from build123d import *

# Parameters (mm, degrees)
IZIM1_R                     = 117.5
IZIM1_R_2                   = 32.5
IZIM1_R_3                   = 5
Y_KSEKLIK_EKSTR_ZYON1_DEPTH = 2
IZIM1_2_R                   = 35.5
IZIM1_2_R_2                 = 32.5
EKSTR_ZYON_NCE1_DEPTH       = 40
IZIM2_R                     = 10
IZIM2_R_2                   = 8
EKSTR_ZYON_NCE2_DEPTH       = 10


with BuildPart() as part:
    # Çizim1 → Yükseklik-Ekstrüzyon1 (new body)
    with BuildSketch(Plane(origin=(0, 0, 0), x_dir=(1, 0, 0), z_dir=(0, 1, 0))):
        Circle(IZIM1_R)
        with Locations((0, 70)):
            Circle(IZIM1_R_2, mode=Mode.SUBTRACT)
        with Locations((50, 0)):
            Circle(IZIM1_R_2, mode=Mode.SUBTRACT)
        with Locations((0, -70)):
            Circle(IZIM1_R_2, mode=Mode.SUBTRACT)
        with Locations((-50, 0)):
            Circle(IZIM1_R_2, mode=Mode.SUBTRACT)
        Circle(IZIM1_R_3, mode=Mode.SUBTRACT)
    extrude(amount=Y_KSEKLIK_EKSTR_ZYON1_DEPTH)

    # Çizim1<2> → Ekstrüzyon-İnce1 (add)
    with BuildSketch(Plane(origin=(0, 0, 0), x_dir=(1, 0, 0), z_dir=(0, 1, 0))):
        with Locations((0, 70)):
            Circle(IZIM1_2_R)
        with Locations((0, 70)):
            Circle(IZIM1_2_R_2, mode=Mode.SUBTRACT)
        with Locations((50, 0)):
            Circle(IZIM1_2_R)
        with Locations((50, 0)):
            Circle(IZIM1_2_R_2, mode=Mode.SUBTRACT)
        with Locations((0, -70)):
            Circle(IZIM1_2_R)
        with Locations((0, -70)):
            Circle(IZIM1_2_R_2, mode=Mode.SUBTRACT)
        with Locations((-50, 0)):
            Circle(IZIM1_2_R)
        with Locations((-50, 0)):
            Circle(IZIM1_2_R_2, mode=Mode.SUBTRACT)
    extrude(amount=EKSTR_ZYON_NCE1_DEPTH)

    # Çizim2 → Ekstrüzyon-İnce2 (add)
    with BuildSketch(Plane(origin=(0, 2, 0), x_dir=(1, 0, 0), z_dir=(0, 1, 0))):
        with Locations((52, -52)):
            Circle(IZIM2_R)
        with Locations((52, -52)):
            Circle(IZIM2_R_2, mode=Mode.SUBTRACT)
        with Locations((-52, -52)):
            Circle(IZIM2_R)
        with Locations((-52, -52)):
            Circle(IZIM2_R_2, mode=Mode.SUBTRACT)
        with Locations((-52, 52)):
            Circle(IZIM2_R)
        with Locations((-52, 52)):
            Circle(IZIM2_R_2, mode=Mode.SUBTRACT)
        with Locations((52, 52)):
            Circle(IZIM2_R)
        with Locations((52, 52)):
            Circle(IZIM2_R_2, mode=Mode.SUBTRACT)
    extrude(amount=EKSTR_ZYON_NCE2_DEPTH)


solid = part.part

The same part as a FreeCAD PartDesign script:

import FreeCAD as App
import Part
import Sketcher
Q = App.Units.Quantity

doc = App.newDocument("Part")
params = doc.addObject("Spreadsheet::Sheet", "Params")
for row, (alias, value) in enumerate([
    ("sketch1_diameter", "235 mm"),
    ("sketch1_diameter2", "65 mm"),
    ("sketch1_diameter3", "10 mm"),
    ("pad1_length", "2 mm"),
    ("sketch2_diameter", "71 mm"),
    ("sketch2_diameter2", "65 mm"),
    ("pad2_length", "40 mm"),
    ("sketch3_diameter", "20 mm"),
    ("sketch3_diameter2", "16 mm"),
    ("pad3_length", "10 mm"),
], start=1):
    params.set(f"A{row}", alias)
    params.set(f"B{row}", "=" + value)
    params.setAlias(f"B{row}", alias)

body = doc.addObject("PartDesign::Body", "Body")

sketch1 = body.newObject("Sketcher::SketchObject", "Sketch")
sketch1.AttachmentSupport = (doc.getObject("XZ_Plane"), [""])
sketch1.MapMode = "FlatFace"
sketch1.addGeometry([
    Part.Circle(App.Vector(0, 0, 0), App.Vector(0, 0, 1), 118),
    Part.Circle(App.Vector(0, 70, 0), App.Vector(0, 0, 1), 32),
    Part.Circle(App.Vector(-50, 0, 0), App.Vector(0, 0, 1), 32),
    Part.Circle(App.Vector(0, 0, 0), App.Vector(0, 0, 1), 5),
    Part.Circle(App.Vector(50, 0, 0), App.Vector(0, 0, 1), 32),
    Part.Circle(App.Vector(0, -70, 0), App.Vector(0, 0, 1), 32),
], False)
sketch1.addConstraint([
    Sketcher.Constraint("Coincident", 0, 3, -1, 1),
    Sketcher.Constraint("Coincident", 3, 3, -1, 1),
    Sketcher.Constraint("Equal", 1, 2),
    Sketcher.Constraint("Equal", 2, 4),
    Sketcher.Constraint("Equal", 4, 5),
    Sketcher.Constraint("Symmetric", 2, 3, 4, 3, -1, 1),
    Sketcher.Constraint("Symmetric", 1, 3, 5, 3, -1, 1),
    Sketcher.Constraint("PointOnObject", 1, 3, -2),
    Sketcher.Constraint("PointOnObject", 2, 3, -1),
    Sketcher.Constraint("Diameter", 0, Q("235 mm")),
    Sketcher.Constraint("Diameter", 1, Q("65 mm")),
    Sketcher.Constraint("Diameter", 3, Q("10 mm")),
    Sketcher.Constraint("DistanceY", -1, 1, 1, 3, Q("70 mm")),
    Sketcher.Constraint("DistanceX", 2, 3, -1, 1, Q("50 mm")),
])
sketch1.setExpression("Constraints[9]", "Params.sketch1_diameter")
sketch1.setExpression("Constraints[10]", "Params.sketch1_diameter2")
sketch1.setExpression("Constraints[11]", "Params.sketch1_diameter3")
pad1 = body.newObject("PartDesign::Pad", "Pad")
pad1.Profile = sketch1
pad1.setExpression("Length", "Params.pad1_length")
pad1.Reversed = True

sketch2 = body.newObject("Sketcher::SketchObject", "Sketch001")
sketch2.AttachmentSupport = (doc.getObject("XZ_Plane"), [""])
sketch2.MapMode = "FlatFace"
sketch2.addGeometry([
    Part.Circle(App.Vector(0, -70, 0), App.Vector(0, 0, 1), 36),
    Part.Circle(App.Vector(0, -70, 0), App.Vector(0, 0, 1), 32),
    Part.Circle(App.Vector(50, 0, 0), App.Vector(0, 0, 1), 36),
    Part.Circle(App.Vector(50, 0, 0), App.Vector(0, 0, 1), 32),
    Part.Circle(App.Vector(0, 70, 0), App.Vector(0, 0, 1), 36),
    Part.Circle(App.Vector(0, 70, 0), App.Vector(0, 0, 1), 32),
    Part.Circle(App.Vector(-50, 0, 0), App.Vector(0, 0, 1), 36),
    Part.Circle(App.Vector(-50, 0, 0), App.Vector(0, 0, 1), 32),
], False)
sketch2.addConstraint([
    Sketcher.Constraint("Coincident", 1, 3, 0, 3),
    Sketcher.Constraint("Coincident", 3, 3, 2, 3),
    Sketcher.Constraint("Coincident", 5, 3, 4, 3),
    Sketcher.Constraint("Coincident", 7, 3, 6, 3),
    Sketcher.Constraint("Equal", 0, 2),
    Sketcher.Constraint("Equal", 1, 3),
    Sketcher.Constraint("Equal", 2, 4),
    Sketcher.Constraint("Equal", 3, 5),
    Sketcher.Constraint("Equal", 4, 6),
    Sketcher.Constraint("Equal", 5, 7),
    Sketcher.Constraint("Symmetric", 0, 3, 4, 3, -1, 1),
    Sketcher.Constraint("Symmetric", 2, 3, 6, 3, -1, 1),
    Sketcher.Constraint("PointOnObject", 0, 3, -2),
    Sketcher.Constraint("PointOnObject", 2, 3, -1),
    Sketcher.Constraint("Diameter", 0, Q("71 mm")),
    Sketcher.Constraint("Diameter", 1, Q("65 mm")),
    Sketcher.Constraint("DistanceY", 0, 3, -1, 1, Q("70 mm")),
    Sketcher.Constraint("DistanceX", -1, 1, 2, 3, Q("50 mm")),
])
sketch2.setExpression("Constraints[14]", "Params.sketch2_diameter")
sketch2.setExpression("Constraints[15]", "Params.sketch2_diameter2")
pad2 = body.newObject("PartDesign::Pad", "Pad001")
pad2.Profile = sketch2
pad2.setExpression("Length", "Params.pad2_length")
pad2.Reversed = True

sketch3 = body.newObject("Sketcher::SketchObject", "Sketch002")
sketch3.AttachmentSupport = (doc.getObject("XZ_Plane"), [""])
sketch3.MapMode = "FlatFace"
sketch3.AttachmentOffset = App.Placement(App.Vector(0, 0, -2), App.Rotation())
sketch3.addGeometry([
    Part.Circle(App.Vector(52, 52, 0), App.Vector(0, 0, 1), 10),
    Part.Circle(App.Vector(52, 52, 0), App.Vector(0, 0, 1), 8),
    Part.Circle(App.Vector(-52, 52, 0), App.Vector(0, 0, 1), 10),
    Part.Circle(App.Vector(-52, 52, 0), App.Vector(0, 0, 1), 8),
    Part.Circle(App.Vector(-52, -52, 0), App.Vector(0, 0, 1), 10),
    Part.Circle(App.Vector(-52, -52, 0), App.Vector(0, 0, 1), 8),
    Part.Circle(App.Vector(52, -52, 0), App.Vector(0, 0, 1), 10),
    Part.Circle(App.Vector(52, -52, 0), App.Vector(0, 0, 1), 8),
], False)
sketch3.addConstraint([
    Sketcher.Constraint("Coincident", 1, 3, 0, 3),
    Sketcher.Constraint("Coincident", 3, 3, 2, 3),
    Sketcher.Constraint("Coincident", 5, 3, 4, 3),
    Sketcher.Constraint("Coincident", 7, 3, 6, 3),
    Sketcher.Constraint("Equal", 0, 2),
    Sketcher.Constraint("Equal", 1, 3),
    Sketcher.Constraint("Equal", 2, 4),
    Sketcher.Constraint("Equal", 3, 5),
    Sketcher.Constraint("Equal", 4, 6),
    Sketcher.Constraint("Equal", 5, 7),
    Sketcher.Constraint("Symmetric", 0, 3, 4, 3, -1, 1),
    Sketcher.Constraint("Symmetric", 2, 3, 6, 3, -1, 1),
    Sketcher.Constraint("Symmetric", 0, 3, 2, 3, -2),
    Sketcher.Constraint("Diameter", 0, Q("20 mm")),
    Sketcher.Constraint("Diameter", 1, Q("16 mm")),
    Sketcher.Constraint("DistanceX", -1, 1, 0, 3, Q("52 mm")),
    Sketcher.Constraint("DistanceY", -1, 1, 0, 3, Q("52 mm")),
])
sketch3.setExpression("Constraints[13]", "Params.sketch3_diameter")
sketch3.setExpression("Constraints[14]", "Params.sketch3_diameter2")
pad3 = body.newObject("PartDesign::Pad", "Pad002")
pad3.Profile = sketch3
pad3.setExpression("Length", "Params.pad3_length")
pad3.Reversed = True

doc.recompute()
